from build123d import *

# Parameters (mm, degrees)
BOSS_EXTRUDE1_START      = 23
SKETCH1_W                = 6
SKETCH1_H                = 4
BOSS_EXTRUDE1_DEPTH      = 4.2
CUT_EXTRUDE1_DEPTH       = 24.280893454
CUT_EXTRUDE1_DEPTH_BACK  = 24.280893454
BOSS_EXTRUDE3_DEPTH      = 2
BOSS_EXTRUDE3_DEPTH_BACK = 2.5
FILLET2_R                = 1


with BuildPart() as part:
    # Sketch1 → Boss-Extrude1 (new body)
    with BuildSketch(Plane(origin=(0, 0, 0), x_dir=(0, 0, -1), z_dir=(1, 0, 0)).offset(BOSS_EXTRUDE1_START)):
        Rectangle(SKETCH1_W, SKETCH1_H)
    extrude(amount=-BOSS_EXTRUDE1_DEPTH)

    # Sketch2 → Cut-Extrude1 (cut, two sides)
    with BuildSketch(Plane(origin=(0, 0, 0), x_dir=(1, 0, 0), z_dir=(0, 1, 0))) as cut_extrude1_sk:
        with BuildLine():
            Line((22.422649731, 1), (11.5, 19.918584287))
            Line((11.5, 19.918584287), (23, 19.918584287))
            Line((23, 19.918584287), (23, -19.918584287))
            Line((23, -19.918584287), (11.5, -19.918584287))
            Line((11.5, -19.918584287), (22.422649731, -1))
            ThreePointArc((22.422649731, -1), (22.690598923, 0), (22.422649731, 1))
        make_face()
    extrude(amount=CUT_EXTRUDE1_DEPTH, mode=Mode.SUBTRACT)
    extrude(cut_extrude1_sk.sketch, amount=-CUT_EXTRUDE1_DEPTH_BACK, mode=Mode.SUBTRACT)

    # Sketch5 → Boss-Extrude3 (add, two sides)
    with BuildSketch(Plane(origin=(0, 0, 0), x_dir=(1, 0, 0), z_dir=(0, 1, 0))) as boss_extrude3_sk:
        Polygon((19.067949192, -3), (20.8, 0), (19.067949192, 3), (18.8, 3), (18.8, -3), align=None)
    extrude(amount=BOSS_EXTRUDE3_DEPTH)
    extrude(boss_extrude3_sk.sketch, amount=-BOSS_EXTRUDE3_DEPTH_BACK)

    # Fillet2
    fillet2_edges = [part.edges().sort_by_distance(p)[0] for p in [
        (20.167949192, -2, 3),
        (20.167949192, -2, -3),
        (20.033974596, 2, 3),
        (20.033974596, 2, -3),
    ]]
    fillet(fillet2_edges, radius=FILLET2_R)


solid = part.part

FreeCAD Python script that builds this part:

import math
import FreeCAD as App
import Part
import Sketcher

V = App.Vector
Q = App.Units.Quantity


def edges_at(feature, points):
    """Names of the edges that pass closest to the given points."""
    edges = feature.Shape.Edges
    near = lambda p: min(range(len(edges)), key=lambda i: edges[i].distToShape(Part.Vertex(*p))[0])
    return sorted({f"Edge{near(p) + 1}" for p in points})


def add_polygon(sketch, points):
    """Adds a closed chain of lines whose ends are joined by coincident constraints."""
    first, n = sketch.GeometryCount, len(points)
    for a, b in zip(points, points[1:] + points[:1]):
        sketch.addGeometry(Part.LineSegment(App.Vector(*a, 0), App.Vector(*b, 0)), False)
    for i in range(n):
        sketch.addConstraint(Sketcher.Constraint("Coincident", first + i, 2, first + (i + 1) % n, 1))

doc = App.newDocument("Part")
params = doc.addObject("Spreadsheet::Sheet", "Params")
for row, (alias, value) in enumerate([
    ("sketch1_width", "4 mm"),
    ("sketch1_height", "6 mm"),
    ("pad1_length", "4.2 mm"),
    ("sketch2_radius", "2 mm"),
    ("sketch2_width", "11.5 mm"),
    ("sketch3_height", "6 mm"),
    ("pad2_length", "2 mm"),
    ("pad2_length2", "2.5 mm"),
    ("fillet_radius", "1 mm"),
], start=1):
    params.set(f"A{row}", alias)
    params.set(f"B{row}", "=" + value)
    params.setAlias(f"B{row}", alias)

body = doc.addObject("PartDesign::Body", "Body")

sketch1 = body.newObject("Sketcher::SketchObject", "Sketch")
sketch1.AttachmentSupport = (doc.getObject("YZ_Plane"), [""])
sketch1.MapMode = "FlatFace"
sketch1.AttachmentOffset = App.Placement(V(0, 0, 23), App.Rotation())
add_polygon(sketch1, [(2, 3), (-2, 3), (-2, -3), (2, -3)])
sketch1.addConstraint([
    Sketcher.Constraint("Horizontal", 0),
    Sketcher.Constraint("Vertical", 1),
    Sketcher.Constraint("Horizontal", 2),
    Sketcher.Constraint("Vertical", 3),
    Sketcher.Constraint("Symmetric", 0, 2, 2, 2, -1, 1),
    Sketcher.Constraint("DistanceX", 0, 2, 0, 1, Q("4 mm")),
    Sketcher.Constraint("DistanceY", 1, 2, 1, 1, Q("6 mm")),
])
sketch1.setExpression("Constraints[9]", "Params.sketch1_width")
sketch1.setExpression("Constraints[10]", "Params.sketch1_height")
pad1 = body.newObject("PartDesign::Pad", "Pad")
pad1.Profile = sketch1
pad1.setExpression("Length", "Params.pad1_length")
pad1.Reversed = True

sketch2 = body.newObject("Sketcher::SketchObject", "Sketch001")
sketch2.AttachmentSupport = (doc.getObject("XZ_Plane"), [""])
sketch2.MapMode = "FlatFace"
sketch2.addGeometry([
    Part.LineSegment(V(11.5, -19.9, 0), V(22.4, -1, 0)),
    Part.ArcOfCircle(Part.Circle(V(20.7, 0, 0), V(0, 0, 1), 2), math.radians(-30), math.radians(30)),
    Part.LineSegment(V(22.4, 1, 0), V(11.5, 19.9, 0)),
    Part.LineSegment(V(11.5, 19.9, 0), V(23, 19.9, 0)),
    Part.LineSegment(V(23, 19.9, 0), V(23, -19.9, 0)),
    Part.LineSegment(V(23, -19.9, 0), V(11.5, -19.9, 0)),
], False)
sketch2.addConstraint([
    Sketcher.Constraint("Tangent", 0, 2, 1, 1),
    Sketcher.Constraint("Tangent", 1, 2, 2, 1),
    Sketcher.Constraint("Coincident", 2, 2, 3, 1),
    Sketcher.Constraint("Coincident", 3, 2, 4, 1),
    Sketcher.Constraint("Coincident", 4, 2, 5, 1),
    Sketcher.Constraint("Coincident", 5, 2, 0, 1),
    Sketcher.Constraint("Horizontal", 3),
    Sketcher.Constraint("Vertical", 4),
    Sketcher.Constraint("Horizontal", 5),
    Sketcher.Constraint("Symmetric", 0, 2, 1, 2, -1),
    Sketcher.Constraint("Vertical", 2, 2, 5, 2),
    Sketcher.Constraint("Radius", 1, Q("2 mm")),
    Sketcher.Constraint("Angle", 0, Q("60 deg")),
    Sketcher.Constraint("DistanceX", 3, 1, 3, 2, Q("11.5 mm")),
    Sketcher.Constraint("DistanceX", -1, 1, 3, 2, Q("23 mm")),
    Sketcher.Constraint("Distance", 0, Q("21.845299 mm")),
])
sketch2.setExpression("Constraints[11]", "Params.sketch2_radius")
sketch2.setExpression("Constraints[13]", "Params.sketch2_width")
pocket1 = body.newObject("PartDesign::Pocket", "Pocket")
pocket1.Profile = sketch2
pocket1.Type = "ThroughAll"
pocket1.Midplane = True

sketch3 = body.newObject("Sketcher::SketchObject", "Sketch002")
sketch3.AttachmentSupport = (doc.getObject("XZ_Plane"), [""])
sketch3.MapMode = "FlatFace"
add_polygon(sketch3, [(19.07, 3), (20.8, 0), (19.07, -3), (18.8, -3), (18.8, 3)])
sketch3.addConstraint([
    Sketcher.Constraint("Horizontal", 2),
    Sketcher.Constraint("Vertical", 3),
    Sketcher.Constraint("Horizontal", 4),
    Sketcher.Constraint("Symmetric", 1, 2, 4, 2, -1),
    Sketcher.Constraint("PointOnObject", 0, 2, -1),
    Sketcher.Constraint("DistanceY", 3, 1, 3, 2, Q("6 mm")),
    Sketcher.Constraint("Angle", 0, Q("-60 deg")),
    Sketcher.Constraint("DistanceX", 2, 2, 0, 2, Q("2 mm")),
    Sketcher.Constraint("DistanceX", -1, 1, 0, 2, Q("20.8 mm")),
])
sketch3.setExpression("Constraints[10]", "Params.sketch3_height")
pad2 = body.newObject("PartDesign::Pad", "Pad001")
pad2.Profile = sketch3
pad2.Type = "TwoLengths"
pad2.setExpression("Length", "Params.pad2_length")
pad2.setExpression("Length2", "Params.pad2_length2")
pad2.Reversed = True
doc.recompute()

fillet = body.newObject("PartDesign::Fillet", "Fillet")
fillet.Base = (pad2, edges_at(pad2, [
    (20.168, -2, 3),
    (20.168, -2, -3),
    (20.034, 2, 3),
    (20.034, 2, -3),
]))
fillet.setExpression("Radius", "Params.fillet_radius")

doc.recompute()
